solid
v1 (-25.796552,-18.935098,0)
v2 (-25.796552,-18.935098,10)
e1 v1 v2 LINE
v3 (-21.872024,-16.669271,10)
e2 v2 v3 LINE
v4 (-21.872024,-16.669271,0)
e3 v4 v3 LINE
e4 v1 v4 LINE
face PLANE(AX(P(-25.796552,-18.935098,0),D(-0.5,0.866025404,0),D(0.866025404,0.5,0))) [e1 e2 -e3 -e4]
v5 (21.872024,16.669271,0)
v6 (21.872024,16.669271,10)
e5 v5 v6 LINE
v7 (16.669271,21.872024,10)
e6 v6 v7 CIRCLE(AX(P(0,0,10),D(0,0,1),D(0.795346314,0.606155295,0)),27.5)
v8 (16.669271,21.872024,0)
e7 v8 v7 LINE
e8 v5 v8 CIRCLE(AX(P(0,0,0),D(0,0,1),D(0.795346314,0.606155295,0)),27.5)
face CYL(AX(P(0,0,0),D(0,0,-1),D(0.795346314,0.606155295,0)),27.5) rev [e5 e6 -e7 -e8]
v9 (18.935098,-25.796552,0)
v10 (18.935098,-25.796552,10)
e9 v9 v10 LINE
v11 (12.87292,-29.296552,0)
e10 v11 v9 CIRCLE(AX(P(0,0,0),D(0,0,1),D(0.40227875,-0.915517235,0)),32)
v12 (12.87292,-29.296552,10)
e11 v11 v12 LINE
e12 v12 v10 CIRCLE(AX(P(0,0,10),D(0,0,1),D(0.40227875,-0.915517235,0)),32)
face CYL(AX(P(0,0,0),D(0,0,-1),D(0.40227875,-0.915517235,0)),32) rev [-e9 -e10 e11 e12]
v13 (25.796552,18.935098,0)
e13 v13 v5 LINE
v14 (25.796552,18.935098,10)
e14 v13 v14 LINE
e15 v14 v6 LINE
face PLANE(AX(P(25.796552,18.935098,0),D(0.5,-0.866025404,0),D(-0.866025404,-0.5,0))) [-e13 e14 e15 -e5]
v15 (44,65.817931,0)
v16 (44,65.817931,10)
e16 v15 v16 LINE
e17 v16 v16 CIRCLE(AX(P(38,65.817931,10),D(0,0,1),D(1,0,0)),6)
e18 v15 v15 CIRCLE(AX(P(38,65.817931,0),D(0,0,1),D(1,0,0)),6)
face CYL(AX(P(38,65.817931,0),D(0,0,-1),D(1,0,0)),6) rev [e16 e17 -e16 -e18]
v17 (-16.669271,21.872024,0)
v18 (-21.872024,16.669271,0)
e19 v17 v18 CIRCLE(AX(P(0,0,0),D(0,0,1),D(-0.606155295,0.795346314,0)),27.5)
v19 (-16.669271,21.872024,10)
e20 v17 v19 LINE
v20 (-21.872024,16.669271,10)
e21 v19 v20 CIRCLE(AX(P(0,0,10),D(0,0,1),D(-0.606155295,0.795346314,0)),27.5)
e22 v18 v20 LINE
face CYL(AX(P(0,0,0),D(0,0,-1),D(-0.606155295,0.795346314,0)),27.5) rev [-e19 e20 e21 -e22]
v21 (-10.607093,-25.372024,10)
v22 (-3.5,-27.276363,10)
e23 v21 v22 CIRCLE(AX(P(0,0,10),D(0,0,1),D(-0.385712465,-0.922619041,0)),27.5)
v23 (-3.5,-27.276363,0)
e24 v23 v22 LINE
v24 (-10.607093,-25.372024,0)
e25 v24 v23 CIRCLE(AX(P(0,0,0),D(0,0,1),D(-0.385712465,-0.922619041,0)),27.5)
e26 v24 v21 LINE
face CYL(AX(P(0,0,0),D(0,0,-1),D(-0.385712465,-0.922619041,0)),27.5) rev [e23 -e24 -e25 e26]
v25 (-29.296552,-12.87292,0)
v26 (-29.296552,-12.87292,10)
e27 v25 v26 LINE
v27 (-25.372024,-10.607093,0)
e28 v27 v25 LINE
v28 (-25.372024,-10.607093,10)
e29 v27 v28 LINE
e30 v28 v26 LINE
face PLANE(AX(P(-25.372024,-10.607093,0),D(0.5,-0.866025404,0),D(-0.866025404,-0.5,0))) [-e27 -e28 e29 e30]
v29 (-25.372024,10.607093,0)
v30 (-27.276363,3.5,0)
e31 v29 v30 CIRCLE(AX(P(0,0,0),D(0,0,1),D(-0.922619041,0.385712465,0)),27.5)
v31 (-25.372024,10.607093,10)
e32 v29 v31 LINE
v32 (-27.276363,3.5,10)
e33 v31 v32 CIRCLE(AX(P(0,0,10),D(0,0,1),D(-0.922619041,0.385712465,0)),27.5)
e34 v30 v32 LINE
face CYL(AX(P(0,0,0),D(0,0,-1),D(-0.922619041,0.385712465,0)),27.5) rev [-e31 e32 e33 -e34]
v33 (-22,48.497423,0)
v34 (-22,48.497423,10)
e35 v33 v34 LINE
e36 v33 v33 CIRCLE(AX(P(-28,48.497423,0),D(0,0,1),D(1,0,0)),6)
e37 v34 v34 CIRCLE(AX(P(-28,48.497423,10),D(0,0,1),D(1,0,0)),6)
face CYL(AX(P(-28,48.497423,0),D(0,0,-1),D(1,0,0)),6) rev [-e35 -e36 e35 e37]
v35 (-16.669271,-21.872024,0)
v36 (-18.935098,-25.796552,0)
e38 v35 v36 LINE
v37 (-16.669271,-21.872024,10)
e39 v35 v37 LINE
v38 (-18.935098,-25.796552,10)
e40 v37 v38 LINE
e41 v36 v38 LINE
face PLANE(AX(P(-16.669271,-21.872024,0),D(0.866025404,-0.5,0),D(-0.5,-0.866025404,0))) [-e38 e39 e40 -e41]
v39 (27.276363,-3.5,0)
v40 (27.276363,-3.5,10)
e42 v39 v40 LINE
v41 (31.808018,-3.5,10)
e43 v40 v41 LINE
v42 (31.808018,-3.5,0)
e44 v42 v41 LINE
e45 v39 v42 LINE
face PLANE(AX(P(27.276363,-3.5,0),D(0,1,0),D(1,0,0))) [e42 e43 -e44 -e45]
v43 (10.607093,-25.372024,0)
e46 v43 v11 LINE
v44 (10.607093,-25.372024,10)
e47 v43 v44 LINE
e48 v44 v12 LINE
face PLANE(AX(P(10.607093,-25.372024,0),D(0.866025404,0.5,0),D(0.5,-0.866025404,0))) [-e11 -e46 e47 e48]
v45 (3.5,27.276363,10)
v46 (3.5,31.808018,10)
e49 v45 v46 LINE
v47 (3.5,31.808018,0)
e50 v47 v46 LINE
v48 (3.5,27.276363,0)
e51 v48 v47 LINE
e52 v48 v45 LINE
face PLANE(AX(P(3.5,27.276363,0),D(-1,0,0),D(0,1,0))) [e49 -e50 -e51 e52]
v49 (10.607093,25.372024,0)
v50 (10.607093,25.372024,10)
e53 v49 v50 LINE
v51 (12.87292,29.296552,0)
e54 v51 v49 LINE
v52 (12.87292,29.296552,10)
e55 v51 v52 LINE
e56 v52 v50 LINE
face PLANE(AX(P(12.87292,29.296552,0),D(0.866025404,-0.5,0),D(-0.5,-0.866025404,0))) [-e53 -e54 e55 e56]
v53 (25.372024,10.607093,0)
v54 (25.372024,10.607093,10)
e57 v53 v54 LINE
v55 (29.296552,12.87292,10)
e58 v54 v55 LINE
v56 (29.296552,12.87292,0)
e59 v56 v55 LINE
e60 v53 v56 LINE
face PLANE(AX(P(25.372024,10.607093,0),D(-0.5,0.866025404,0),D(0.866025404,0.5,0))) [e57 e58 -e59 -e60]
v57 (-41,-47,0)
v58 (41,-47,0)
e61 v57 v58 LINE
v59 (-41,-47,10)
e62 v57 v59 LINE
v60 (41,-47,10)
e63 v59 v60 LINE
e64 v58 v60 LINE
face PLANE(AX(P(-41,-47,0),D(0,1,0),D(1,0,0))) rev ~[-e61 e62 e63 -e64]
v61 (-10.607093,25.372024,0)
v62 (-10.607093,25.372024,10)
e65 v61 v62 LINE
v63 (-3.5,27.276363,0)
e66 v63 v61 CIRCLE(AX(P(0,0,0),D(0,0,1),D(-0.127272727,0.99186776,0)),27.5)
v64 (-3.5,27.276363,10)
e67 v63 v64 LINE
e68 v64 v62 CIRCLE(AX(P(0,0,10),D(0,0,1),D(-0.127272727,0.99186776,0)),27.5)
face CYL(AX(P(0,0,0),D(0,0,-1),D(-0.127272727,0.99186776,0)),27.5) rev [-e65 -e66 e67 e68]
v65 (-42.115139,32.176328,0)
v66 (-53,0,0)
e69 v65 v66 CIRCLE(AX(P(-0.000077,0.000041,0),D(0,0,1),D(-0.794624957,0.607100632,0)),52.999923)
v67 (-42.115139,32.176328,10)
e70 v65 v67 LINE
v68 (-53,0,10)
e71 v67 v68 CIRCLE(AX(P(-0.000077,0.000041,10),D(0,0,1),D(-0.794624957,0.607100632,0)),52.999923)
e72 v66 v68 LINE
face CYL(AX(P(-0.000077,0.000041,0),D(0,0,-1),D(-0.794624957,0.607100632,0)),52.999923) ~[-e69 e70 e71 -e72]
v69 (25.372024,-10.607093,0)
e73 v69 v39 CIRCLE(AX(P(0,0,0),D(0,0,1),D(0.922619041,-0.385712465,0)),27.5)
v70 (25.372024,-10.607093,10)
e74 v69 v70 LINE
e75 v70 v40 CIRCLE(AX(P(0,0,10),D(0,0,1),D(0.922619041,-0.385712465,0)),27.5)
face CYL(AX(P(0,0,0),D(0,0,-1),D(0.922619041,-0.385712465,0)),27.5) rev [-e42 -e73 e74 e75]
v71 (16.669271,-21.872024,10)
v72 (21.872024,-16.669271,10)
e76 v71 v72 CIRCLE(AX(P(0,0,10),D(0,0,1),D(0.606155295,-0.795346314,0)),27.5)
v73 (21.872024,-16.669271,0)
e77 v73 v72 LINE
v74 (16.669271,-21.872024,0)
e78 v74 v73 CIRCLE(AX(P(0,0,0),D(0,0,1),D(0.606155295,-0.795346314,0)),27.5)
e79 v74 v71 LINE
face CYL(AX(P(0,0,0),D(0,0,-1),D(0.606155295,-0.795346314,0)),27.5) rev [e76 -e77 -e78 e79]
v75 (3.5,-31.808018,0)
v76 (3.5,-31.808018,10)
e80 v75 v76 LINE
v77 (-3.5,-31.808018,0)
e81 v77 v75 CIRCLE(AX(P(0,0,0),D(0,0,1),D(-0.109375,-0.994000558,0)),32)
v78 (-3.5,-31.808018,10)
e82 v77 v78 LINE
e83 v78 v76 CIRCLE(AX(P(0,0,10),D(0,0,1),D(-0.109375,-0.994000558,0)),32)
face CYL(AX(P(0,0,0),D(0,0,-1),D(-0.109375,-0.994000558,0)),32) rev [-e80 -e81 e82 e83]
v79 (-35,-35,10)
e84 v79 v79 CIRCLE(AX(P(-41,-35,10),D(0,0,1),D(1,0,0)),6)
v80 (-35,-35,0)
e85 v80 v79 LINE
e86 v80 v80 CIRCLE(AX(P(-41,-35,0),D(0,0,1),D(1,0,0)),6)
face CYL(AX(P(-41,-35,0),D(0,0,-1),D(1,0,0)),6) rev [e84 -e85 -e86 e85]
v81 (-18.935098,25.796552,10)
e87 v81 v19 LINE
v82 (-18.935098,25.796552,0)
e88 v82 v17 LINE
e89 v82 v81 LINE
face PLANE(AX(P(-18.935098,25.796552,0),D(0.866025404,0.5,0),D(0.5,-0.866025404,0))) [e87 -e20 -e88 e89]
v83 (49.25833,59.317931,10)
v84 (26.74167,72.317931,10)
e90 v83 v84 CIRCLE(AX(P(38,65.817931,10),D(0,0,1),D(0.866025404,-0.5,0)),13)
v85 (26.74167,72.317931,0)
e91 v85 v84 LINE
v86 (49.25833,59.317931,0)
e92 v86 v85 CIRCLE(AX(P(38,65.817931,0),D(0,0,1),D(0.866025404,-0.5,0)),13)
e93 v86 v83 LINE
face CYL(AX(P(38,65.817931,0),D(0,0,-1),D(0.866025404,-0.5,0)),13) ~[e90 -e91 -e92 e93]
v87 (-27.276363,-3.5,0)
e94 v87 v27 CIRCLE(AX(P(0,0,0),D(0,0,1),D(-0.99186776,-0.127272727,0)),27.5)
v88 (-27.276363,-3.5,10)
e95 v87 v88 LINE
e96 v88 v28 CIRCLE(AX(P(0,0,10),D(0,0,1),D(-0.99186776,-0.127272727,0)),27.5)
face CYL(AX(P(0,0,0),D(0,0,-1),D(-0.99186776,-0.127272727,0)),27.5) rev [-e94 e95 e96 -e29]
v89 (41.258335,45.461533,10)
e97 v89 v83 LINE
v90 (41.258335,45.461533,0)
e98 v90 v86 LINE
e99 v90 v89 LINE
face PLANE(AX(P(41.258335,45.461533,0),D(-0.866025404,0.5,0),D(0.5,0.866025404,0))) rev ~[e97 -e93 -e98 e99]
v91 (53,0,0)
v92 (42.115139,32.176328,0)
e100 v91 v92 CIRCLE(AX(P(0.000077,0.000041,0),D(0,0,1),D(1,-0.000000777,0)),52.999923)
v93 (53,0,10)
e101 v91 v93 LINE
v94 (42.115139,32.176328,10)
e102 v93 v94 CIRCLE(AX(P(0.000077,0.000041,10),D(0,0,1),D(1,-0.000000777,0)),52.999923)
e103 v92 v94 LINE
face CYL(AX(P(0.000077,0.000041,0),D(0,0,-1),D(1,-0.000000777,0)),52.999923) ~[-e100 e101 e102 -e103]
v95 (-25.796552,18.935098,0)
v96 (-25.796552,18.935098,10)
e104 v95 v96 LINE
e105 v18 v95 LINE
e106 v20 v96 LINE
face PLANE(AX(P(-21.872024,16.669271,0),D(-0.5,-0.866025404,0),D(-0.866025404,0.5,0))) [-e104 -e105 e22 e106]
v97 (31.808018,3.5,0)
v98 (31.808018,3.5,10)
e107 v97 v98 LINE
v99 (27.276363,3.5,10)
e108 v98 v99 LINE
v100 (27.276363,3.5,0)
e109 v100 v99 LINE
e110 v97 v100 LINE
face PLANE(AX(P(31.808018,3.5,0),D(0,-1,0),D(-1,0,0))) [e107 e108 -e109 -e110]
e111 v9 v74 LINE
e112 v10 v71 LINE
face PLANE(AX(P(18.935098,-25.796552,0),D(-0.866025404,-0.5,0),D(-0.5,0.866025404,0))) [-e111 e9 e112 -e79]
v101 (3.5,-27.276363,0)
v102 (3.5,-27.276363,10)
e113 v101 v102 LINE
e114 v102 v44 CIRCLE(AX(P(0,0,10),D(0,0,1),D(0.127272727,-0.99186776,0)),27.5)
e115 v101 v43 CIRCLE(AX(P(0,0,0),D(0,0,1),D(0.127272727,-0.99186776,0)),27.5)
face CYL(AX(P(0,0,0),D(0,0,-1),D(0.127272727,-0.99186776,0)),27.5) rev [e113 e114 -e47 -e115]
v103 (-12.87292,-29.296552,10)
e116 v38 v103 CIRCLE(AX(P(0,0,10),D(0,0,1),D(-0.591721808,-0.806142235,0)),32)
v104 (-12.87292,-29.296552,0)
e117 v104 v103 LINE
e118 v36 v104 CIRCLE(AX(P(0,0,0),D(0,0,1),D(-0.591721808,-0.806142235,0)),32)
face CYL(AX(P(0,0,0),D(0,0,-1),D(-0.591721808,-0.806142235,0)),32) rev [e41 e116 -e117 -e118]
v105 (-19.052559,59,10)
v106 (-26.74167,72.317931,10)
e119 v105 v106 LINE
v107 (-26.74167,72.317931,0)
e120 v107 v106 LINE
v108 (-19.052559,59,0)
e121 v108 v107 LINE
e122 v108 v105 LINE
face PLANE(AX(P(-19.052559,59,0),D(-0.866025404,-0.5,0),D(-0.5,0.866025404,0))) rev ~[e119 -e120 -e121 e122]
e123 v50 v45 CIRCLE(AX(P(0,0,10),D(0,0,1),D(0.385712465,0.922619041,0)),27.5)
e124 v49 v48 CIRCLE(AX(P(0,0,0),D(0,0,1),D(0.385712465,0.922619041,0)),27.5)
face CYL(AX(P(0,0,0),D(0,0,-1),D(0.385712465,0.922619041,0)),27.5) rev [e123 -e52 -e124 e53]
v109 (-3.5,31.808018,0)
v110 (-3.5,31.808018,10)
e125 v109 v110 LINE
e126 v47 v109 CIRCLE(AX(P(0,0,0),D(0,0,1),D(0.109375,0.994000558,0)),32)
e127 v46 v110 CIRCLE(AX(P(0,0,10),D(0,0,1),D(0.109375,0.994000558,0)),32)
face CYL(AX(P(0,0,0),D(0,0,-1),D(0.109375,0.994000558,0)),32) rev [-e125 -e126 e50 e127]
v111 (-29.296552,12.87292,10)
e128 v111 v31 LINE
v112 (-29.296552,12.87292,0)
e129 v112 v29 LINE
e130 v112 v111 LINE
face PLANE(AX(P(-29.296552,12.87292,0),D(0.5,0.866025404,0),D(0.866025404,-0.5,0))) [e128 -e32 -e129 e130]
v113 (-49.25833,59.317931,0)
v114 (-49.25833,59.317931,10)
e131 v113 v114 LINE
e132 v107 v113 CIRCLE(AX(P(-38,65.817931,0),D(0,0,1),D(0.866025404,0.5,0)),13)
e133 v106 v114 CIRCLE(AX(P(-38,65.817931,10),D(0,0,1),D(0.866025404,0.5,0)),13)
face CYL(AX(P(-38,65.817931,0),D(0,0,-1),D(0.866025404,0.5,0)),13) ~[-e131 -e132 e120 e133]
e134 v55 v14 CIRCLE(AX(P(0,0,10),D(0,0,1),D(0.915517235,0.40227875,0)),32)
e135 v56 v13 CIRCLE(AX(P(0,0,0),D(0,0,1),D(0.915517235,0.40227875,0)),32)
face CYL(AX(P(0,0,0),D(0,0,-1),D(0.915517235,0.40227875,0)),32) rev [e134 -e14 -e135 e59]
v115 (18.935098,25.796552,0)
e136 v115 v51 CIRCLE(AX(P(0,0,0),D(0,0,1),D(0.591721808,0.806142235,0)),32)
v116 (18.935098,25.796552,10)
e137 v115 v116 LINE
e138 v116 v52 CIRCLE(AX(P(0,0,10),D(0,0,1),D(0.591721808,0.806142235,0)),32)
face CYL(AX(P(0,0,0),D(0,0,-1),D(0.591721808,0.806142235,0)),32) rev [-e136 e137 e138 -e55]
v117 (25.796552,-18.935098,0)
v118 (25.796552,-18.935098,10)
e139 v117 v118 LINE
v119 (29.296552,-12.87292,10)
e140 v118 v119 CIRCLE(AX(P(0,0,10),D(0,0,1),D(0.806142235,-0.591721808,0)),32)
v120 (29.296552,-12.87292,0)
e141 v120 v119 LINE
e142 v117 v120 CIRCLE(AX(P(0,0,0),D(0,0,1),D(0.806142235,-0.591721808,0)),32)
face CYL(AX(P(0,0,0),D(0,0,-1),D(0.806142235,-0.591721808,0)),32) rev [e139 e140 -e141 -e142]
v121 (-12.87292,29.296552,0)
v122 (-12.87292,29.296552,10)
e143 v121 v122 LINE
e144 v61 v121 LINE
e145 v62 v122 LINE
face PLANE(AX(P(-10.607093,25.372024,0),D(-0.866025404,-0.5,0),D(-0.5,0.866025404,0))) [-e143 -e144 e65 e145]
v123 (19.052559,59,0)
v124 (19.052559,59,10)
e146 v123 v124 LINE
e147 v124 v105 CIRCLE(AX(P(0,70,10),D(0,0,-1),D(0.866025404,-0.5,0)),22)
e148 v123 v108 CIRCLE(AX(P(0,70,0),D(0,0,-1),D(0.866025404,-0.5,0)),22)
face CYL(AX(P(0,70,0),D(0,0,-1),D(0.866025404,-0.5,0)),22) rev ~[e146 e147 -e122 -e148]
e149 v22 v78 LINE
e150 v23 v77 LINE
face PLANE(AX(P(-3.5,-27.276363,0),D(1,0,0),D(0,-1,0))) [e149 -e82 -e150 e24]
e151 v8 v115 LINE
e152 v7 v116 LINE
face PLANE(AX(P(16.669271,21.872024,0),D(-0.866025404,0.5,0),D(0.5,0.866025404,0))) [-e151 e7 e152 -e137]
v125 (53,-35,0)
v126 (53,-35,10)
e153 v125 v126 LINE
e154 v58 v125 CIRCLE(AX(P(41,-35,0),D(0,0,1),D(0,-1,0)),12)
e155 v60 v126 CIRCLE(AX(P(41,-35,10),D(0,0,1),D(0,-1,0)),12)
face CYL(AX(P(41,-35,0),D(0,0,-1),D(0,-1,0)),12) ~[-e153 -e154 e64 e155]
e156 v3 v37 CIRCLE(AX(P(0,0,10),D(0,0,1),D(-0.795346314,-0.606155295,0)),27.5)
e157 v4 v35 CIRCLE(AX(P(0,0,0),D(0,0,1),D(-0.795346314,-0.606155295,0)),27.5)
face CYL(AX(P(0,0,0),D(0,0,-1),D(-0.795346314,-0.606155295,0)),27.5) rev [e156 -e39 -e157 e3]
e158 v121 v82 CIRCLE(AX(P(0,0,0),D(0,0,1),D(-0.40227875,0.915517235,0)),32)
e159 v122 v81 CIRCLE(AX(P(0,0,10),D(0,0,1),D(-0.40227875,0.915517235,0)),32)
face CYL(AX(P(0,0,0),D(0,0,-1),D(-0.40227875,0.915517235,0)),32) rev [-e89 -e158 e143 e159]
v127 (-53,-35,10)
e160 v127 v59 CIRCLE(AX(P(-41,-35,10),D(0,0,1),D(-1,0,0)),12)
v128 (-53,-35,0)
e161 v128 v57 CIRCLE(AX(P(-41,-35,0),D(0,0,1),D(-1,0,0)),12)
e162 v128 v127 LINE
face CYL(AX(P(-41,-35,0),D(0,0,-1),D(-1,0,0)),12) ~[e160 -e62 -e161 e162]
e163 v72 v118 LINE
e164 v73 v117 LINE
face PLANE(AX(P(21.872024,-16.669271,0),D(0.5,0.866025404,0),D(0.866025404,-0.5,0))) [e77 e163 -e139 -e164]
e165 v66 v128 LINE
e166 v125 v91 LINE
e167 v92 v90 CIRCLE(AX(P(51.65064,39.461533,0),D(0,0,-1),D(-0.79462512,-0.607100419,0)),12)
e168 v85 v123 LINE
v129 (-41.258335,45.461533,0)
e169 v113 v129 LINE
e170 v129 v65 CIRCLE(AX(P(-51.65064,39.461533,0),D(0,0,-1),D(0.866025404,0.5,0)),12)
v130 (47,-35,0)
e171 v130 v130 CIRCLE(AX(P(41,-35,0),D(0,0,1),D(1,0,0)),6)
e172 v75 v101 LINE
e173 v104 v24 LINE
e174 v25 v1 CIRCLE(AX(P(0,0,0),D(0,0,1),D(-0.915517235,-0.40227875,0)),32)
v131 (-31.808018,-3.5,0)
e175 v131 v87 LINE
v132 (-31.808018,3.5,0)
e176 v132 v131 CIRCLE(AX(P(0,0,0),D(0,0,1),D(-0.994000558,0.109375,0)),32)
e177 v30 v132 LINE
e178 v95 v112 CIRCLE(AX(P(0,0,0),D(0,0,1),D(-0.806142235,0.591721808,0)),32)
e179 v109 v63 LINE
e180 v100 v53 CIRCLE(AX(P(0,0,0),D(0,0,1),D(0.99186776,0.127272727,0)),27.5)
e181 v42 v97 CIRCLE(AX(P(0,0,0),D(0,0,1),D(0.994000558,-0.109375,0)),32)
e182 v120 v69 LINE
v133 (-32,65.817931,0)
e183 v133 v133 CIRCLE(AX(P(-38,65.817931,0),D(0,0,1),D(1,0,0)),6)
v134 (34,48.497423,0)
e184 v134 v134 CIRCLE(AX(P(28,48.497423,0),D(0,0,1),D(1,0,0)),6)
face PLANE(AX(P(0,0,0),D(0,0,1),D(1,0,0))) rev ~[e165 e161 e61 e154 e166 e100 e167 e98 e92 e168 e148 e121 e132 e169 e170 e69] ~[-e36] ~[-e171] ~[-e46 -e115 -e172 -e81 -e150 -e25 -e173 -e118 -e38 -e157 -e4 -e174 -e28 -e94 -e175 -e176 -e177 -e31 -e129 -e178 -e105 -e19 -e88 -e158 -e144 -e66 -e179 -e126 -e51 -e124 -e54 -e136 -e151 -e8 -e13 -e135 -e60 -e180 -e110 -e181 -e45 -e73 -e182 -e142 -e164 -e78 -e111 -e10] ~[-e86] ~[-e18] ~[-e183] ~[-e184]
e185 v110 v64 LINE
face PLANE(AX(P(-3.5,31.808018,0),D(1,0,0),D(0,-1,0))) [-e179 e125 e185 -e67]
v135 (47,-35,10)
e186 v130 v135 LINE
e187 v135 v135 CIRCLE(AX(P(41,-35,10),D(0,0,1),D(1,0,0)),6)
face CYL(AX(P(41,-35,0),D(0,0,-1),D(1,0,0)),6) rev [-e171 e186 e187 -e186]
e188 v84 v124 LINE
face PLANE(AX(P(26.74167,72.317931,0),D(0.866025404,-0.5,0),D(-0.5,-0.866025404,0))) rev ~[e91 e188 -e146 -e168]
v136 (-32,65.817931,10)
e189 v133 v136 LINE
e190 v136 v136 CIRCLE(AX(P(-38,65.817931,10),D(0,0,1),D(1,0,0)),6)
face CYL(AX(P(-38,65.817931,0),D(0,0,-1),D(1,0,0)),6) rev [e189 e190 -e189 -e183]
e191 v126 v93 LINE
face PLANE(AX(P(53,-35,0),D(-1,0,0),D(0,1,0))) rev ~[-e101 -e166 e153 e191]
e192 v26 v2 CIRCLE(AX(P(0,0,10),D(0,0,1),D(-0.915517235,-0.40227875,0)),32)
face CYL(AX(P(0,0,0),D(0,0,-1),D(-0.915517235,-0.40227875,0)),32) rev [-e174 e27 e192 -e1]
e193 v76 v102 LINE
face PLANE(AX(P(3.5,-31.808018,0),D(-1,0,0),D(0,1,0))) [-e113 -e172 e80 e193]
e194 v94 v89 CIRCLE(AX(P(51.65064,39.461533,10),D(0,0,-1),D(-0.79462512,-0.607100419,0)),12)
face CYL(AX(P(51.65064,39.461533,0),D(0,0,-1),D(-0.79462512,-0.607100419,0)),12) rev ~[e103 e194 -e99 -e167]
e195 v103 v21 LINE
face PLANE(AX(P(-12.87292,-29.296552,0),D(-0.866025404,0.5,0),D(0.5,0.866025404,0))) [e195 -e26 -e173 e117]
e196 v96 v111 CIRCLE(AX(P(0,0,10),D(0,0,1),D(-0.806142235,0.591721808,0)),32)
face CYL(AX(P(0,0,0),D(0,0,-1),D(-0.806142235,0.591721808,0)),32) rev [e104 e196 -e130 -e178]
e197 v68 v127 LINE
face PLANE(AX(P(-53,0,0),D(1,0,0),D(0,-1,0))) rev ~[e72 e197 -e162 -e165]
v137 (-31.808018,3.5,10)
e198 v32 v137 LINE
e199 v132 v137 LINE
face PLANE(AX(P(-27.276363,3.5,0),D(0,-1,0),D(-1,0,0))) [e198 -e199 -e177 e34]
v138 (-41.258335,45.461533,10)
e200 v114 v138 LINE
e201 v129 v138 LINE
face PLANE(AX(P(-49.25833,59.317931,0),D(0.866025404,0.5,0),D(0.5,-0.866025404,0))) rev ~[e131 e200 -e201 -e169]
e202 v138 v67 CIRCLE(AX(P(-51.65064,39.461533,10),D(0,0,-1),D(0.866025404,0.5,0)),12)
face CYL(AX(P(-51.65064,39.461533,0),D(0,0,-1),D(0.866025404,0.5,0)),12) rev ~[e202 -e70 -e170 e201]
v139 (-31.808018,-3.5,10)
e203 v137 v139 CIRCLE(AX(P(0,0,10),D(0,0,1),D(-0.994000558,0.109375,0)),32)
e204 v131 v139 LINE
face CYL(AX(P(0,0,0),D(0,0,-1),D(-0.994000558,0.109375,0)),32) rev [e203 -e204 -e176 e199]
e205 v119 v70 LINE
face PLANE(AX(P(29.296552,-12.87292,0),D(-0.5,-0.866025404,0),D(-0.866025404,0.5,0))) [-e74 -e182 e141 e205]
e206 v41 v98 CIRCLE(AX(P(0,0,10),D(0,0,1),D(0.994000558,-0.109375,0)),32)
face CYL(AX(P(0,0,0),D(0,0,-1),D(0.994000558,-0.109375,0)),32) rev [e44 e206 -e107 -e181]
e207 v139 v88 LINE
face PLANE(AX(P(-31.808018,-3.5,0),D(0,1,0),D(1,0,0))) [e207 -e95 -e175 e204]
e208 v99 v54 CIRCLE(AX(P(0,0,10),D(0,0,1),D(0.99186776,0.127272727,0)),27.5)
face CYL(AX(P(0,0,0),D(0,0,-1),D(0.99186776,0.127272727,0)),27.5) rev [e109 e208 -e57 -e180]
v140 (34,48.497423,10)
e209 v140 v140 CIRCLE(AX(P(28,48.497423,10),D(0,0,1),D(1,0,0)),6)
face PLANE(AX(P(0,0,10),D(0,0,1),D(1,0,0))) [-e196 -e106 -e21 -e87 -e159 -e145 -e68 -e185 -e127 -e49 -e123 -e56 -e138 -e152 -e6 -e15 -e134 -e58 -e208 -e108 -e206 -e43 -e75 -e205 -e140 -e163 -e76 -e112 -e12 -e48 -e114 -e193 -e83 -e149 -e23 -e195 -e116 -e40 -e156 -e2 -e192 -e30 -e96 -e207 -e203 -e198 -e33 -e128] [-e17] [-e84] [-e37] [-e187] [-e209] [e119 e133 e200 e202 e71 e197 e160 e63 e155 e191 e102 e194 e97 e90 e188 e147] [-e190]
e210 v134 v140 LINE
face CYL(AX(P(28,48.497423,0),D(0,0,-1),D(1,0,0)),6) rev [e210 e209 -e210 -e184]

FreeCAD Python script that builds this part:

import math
import FreeCAD as App
import Part
import Sketcher
from FreeCAD import Vector
Q = App.Units.Quantity

doc = App.newDocument("Part")
body = doc.addObject("PartDesign::Body", "Body")

# Sketch on XY plane
sketch1 = body.newObject("Sketcher::SketchObject", "Sketch")
sketch1.AttachmentSupport = (doc.getObject("XY_Plane"), [""])
sketch1.MapMode = "FlatFace"
sketch1.addGeometry(Part.ArcOfCircle(Part.Circle(Vector(38, 65.817931, 0), Vector(0, 0, 1), 13), math.radians(-30), math.radians(150)), False)
sketch1.addGeometry(Part.LineSegment(Vector(26.74167, 72.317931, 0), Vector(19.052559, 59, 0)), False)
sketch1.addGeometry(Part.ArcOfCircle(Part.Circle(Vector(0, 70, 0), Vector(0, 0, 1), 22), math.radians(-150), math.radians(-30)), False)
sketch1.addGeometry(Part.LineSegment(Vector(-19.052559, 59, 0), Vector(-26.74167, 72.317931, 0)), False)
sketch1.addGeometry(Part.ArcOfCircle(Part.Circle(Vector(-38, 65.817931, 0), Vector(0, 0, 1), 13), math.radians(30), math.radians(210)), False)
sketch1.addGeometry(Part.LineSegment(Vector(-49.25833, 59.317931, 0), Vector(-41.258335, 45.461533, 0)), False)
sketch1.addGeometry(Part.ArcOfCircle(Part.Circle(Vector(-51.65064, 39.461533, 0), Vector(0, 0, 1), 12), math.radians(-37.380138), math.radians(30)), False)
sketch1.addGeometry(Part.ArcOfCircle(Part.Circle(Vector(-0.000077, 0.000041, 0), Vector(0, 0, 1), 52.999923), math.radians(142.619846), math.radians(180.000045)), False)
sketch1.addGeometry(Part.LineSegment(Vector(-53, 0, 0), Vector(-53, -35, 0)), False)
sketch1.addGeometry(Part.ArcOfCircle(Part.Circle(Vector(-41, -35, 0), Vector(0, 0, 1), 12), math.radians(-180), math.radians(-90)), False)
sketch1.addGeometry(Part.LineSegment(Vector(-41, -47, 0), Vector(41, -47, 0)), False)
sketch1.addGeometry(Part.ArcOfCircle(Part.Circle(Vector(41, -35, 0), Vector(0, 0, 1), 12), math.radians(-90), math.radians(0)), False)
sketch1.addGeometry(Part.LineSegment(Vector(53, -35, 0), Vector(53, 0, 0)), False)
sketch1.addGeometry(Part.ArcOfCircle(Part.Circle(Vector(0.000077, 0.000041, 0), Vector(0, 0, 1), 52.999923), math.radians(-0.000045), math.radians(37.380154)), False)
sketch1.addGeometry(Part.ArcOfCircle(Part.Circle(Vector(51.65064, 39.461533, 0), Vector(0, 0, 1), 12), math.radians(150), math.radians(217.380138)), False)
sketch1.addGeometry(Part.LineSegment(Vector(41.258335, 45.461533, 0), Vector(49.25833, 59.317931, 0)), False)
sketch1.addGeometry(Part.Circle(Vector(-41, -35, 0), Vector(0, 0, 1), 6), False)
sketch1.addGeometry(Part.Circle(Vector(41, -35, 0), Vector(0, 0, 1), 6), False)
sketch1.addGeometry(Part.Circle(Vector(-28, 48.497423, 0), Vector(0, 0, 1), 6), False)
sketch1.addGeometry(Part.Circle(Vector(-38, 65.817931, 0), Vector(0, 0, 1), 6), False)
sketch1.addGeometry(Part.Circle(Vector(28, 48.497423, 0), Vector(0, 0, 1), 6), False)
sketch1.addGeometry(Part.Circle(Vector(38, 65.817931, 0), Vector(0, 0, 1), 6), False)
sketch1.addGeometry(Part.LineSegment(Vector(10.607093, 25.372024, 0), Vector(12.87292, 29.296552, 0)), False)
sketch1.addGeometry(Part.ArcOfCircle(Part.Circle(Vector(0, 0, 0), Vector(0, 0, 1), 32), math.radians(53.720712), math.radians(66.279288)), False)
sketch1.addGeometry(Part.LineSegment(Vector(18.935098, 25.796552, 0), Vector(16.669271, 21.872024, 0)), False)
sketch1.addGeometry(Part.ArcOfCircle(Part.Circle(Vector(0, 0, 0), Vector(0, 0, 1), 27.5), math.radians(37.312022), math.radians(52.687978)), False)
sketch1.addGeometry(Part.LineSegment(Vector(21.872024, 16.669271, 0), Vector(25.796552, 18.935098, 0)), False)
sketch1.addGeometry(Part.ArcOfCircle(Part.Circle(Vector(0, 0, 0), Vector(0, 0, 1), 32), math.radians(23.720712), math.radians(36.279288)), False)
sketch1.addGeometry(Part.LineSegment(Vector(29.296552, 12.87292, 0), Vector(25.372024, 10.607093, 0)), False)
sketch1.addGeometry(Part.ArcOfCircle(Part.Circle(Vector(0, 0, 0), Vector(0, 0, 1), 27.5), math.radians(7.312022), math.radians(22.687978)), False)
sketch1.addGeometry(Part.LineSegment(Vector(27.276363, 3.5, 0), Vector(31.808018, 3.5, 0)), False)
sketch1.addGeometry(Part.ArcOfCircle(Part.Circle(Vector(0, 0, 0), Vector(0, 0, 1), 32), math.radians(-6.279288), math.radians(6.279288)), False)
sketch1.addGeometry(Part.LineSegment(Vector(31.808018, -3.5, 0), Vector(27.276363, -3.5, 0)), False)
sketch1.addGeometry(Part.ArcOfCircle(Part.Circle(Vector(0, 0, 0), Vector(0, 0, 1), 27.5), math.radians(-22.687978), math.radians(-7.312022)), False)
sketch1.addGeometry(Part.LineSegment(Vector(25.372024, -10.607093, 0), Vector(29.296552, -12.87292, 0)), False)
sketch1.addGeometry(Part.ArcOfCircle(Part.Circle(Vector(0, 0, 0), Vector(0, 0, 1), 32), math.radians(-36.279288), math.radians(-23.720712)), False)
sketch1.addGeometry(Part.LineSegment(Vector(25.796552, -18.935098, 0), Vector(21.872024, -16.669271, 0)), False)
sketch1.addGeometry(Part.ArcOfCircle(Part.Circle(Vector(0, 0, 0), Vector(0, 0, 1), 27.5), math.radians(-52.687978), math.radians(-37.312022)), False)
sketch1.addGeometry(Part.LineSegment(Vector(16.669271, -21.872024, 0), Vector(18.935098, -25.796552, 0)), False)
sketch1.addGeometry(Part.ArcOfCircle(Part.Circle(Vector(0, 0, 0), Vector(0, 0, 1), 32), math.radians(-66.279288), math.radians(-53.720712)), False)
sketch1.addGeometry(Part.LineSegment(Vector(12.87292, -29.296552, 0), Vector(10.607093, -25.372024, 0)), False)
sketch1.addGeometry(Part.ArcOfCircle(Part.Circle(Vector(0, 0, 0), Vector(0, 0, 1), 27.5), math.radians(-82.687978), math.radians(-67.312022)), False)
sketch1.addGeometry(Part.LineSegment(Vector(3.5, -27.276363, 0), Vector(3.5, -31.808018, 0)), False)
sketch1.addGeometry(Part.ArcOfCircle(Part.Circle(Vector(0, 0, 0), Vector(0, 0, 1), 32), math.radians(-96.279288), math.radians(-83.720712)), False)
sketch1.addGeometry(Part.LineSegment(Vector(-3.5, -31.808018, 0), Vector(-3.5, -27.276363, 0)), False)
sketch1.addGeometry(Part.ArcOfCircle(Part.Circle(Vector(0, 0, 0), Vector(0, 0, 1), 27.5), math.radians(-112.687978), math.radians(-97.312022)), False)
sketch1.addGeometry(Part.LineSegment(Vector(-10.607093, -25.372024, 0), Vector(-12.87292, -29.296552, 0)), False)
sketch1.addGeometry(Part.ArcOfCircle(Part.Circle(Vector(0, 0, 0), Vector(0, 0, 1), 32), math.radians(-126.279288), math.radians(-113.720712)), False)
sketch1.addGeometry(Part.LineSegment(Vector(-18.935098, -25.796552, 0), Vector(-16.669271, -21.872024, 0)), False)
sketch1.addGeometry(Part.ArcOfCircle(Part.Circle(Vector(0, 0, 0), Vector(0, 0, 1), 27.5), math.radians(-142.687978), math.radians(-127.312022)), False)
sketch1.addGeometry(Part.LineSegment(Vector(-21.872024, -16.669271, 0), Vector(-25.796552, -18.935098, 0)), False)
sketch1.addGeometry(Part.ArcOfCircle(Part.Circle(Vector(0, 0, 0), Vector(0, 0, 1), 32), math.radians(-156.279288), math.radians(-143.720712)), False)
sketch1.addGeometry(Part.LineSegment(Vector(-29.296552, -12.87292, 0), Vector(-25.372024, -10.607093, 0)), False)
sketch1.addGeometry(Part.ArcOfCircle(Part.Circle(Vector(0, 0, 0), Vector(0, 0, 1), 27.5), math.radians(-172.687978), math.radians(-157.312022)), False)
sketch1.addGeometry(Part.LineSegment(Vector(-27.276363, -3.5, 0), Vector(-31.808018, -3.5, 0)), False)
sketch1.addGeometry(Part.ArcOfCircle(Part.Circle(Vector(0, 0, 0), Vector(0, 0, 1), 32), math.radians(173.720712), math.radians(186.279288)), False)
sketch1.addGeometry(Part.LineSegment(Vector(-31.808018, 3.5, 0), Vector(-27.276363, 3.5, 0)), False)
sketch1.addGeometry(Part.ArcOfCircle(Part.Circle(Vector(0, 0, 0), Vector(0, 0, 1), 27.5), math.radians(157.312022), math.radians(172.687978)), False)
sketch1.addGeometry(Part.LineSegment(Vector(-25.372024, 10.607093, 0), Vector(-29.296552, 12.87292, 0)), False)
sketch1.addGeometry(Part.ArcOfCircle(Part.Circle(Vector(0, 0, 0), Vector(0, 0, 1), 32), math.radians(143.720712), math.radians(156.279288)), False)
sketch1.addGeometry(Part.LineSegment(Vector(-25.796552, 18.935098, 0), Vector(-21.872024, 16.669271, 0)), False)
sketch1.addGeometry(Part.ArcOfCircle(Part.Circle(Vector(0, 0, 0), Vector(0, 0, 1), 27.5), math.radians(127.312022), math.radians(142.687978)), False)
sketch1.addGeometry(Part.LineSegment(Vector(-16.669271, 21.872024, 0), Vector(-18.935098, 25.796552, 0)), False)
sketch1.addGeometry(Part.ArcOfCircle(Part.Circle(Vector(0, 0, 0), Vector(0, 0, 1), 32), math.radians(113.720712), math.radians(126.279288)), False)
sketch1.addGeometry(Part.LineSegment(Vector(-12.87292, 29.296552, 0), Vector(-10.607093, 25.372024, 0)), False)
sketch1.addGeometry(Part.ArcOfCircle(Part.Circle(Vector(0, 0, 0), Vector(0, 0, 1), 27.5), math.radians(97.312022), math.radians(112.687978)), False)
sketch1.addGeometry(Part.LineSegment(Vector(-3.5, 27.276363, 0), Vector(-3.5, 31.808018, 0)), False)
sketch1.addGeometry(Part.ArcOfCircle(Part.Circle(Vector(0, 0, 0), Vector(0, 0, 1), 32), math.radians(83.720712), math.radians(96.279288)), False)
sketch1.addGeometry(Part.LineSegment(Vector(3.5, 31.808018, 0), Vector(3.5, 27.276363, 0)), False)
sketch1.addGeometry(Part.ArcOfCircle(Part.Circle(Vector(0, 0, 0), Vector(0, 0, 1), 27.5), math.radians(67.312022), math.radians(82.687978)), False)
sketch1.addConstraint(Sketcher.Constraint("Coincident", 0, 2, 1, 1))
sketch1.addConstraint(Sketcher.Constraint("Coincident", 1, 2, 2, 2))
sketch1.addConstraint(Sketcher.Constraint("Coincident", 2, 1, 3, 1))
sketch1.addConstraint(Sketcher.Constraint("Coincident", 3, 2, 4, 1))
sketch1.addConstraint(Sketcher.Constraint("Coincident", 4, 2, 5, 1))
sketch1.addConstraint(Sketcher.Constraint("Coincident", 5, 2, 6, 2))
sketch1.addConstraint(Sketcher.Constraint("Coincident", 6, 1, 7, 1))
sketch1.addConstraint(Sketcher.Constraint("Coincident", 7, 2, 8, 1))
sketch1.addConstraint(Sketcher.Constraint("Coincident", 8, 2, 9, 1))
sketch1.addConstraint(Sketcher.Constraint("Coincident", 9, 2, 10, 1))
sketch1.addConstraint(Sketcher.Constraint("Coincident", 10, 2, 11, 1))
sketch1.addConstraint(Sketcher.Constraint("Coincident", 11, 2, 12, 1))
sketch1.addConstraint(Sketcher.Constraint("Coincident", 12, 2, 13, 1))
sketch1.addConstraint(Sketcher.Constraint("Coincident", 13, 2, 14, 2))
sketch1.addConstraint(Sketcher.Constraint("Coincident", 14, 1, 15, 1))
sketch1.addConstraint(Sketcher.Constraint("Coincident", 15, 2, 0, 1))
sketch1.addConstraint(Sketcher.Constraint("Coincident", 22, 2, 23, 2))
sketch1.addConstraint(Sketcher.Constraint("Coincident", 23, 1, 24, 1))
sketch1.addConstraint(Sketcher.Constraint("Coincident", 24, 2, 25, 2))
sketch1.addConstraint(Sketcher.Constraint("Coincident", 25, 1, 26, 1))
sketch1.addConstraint(Sketcher.Constraint("Coincident", 26, 2, 27, 2))
sketch1.addConstraint(Sketcher.Constraint("Coincident", 27, 1, 28, 1))
sketch1.addConstraint(Sketcher.Constraint("Coincident", 28, 2, 29, 2))
sketch1.addConstraint(Sketcher.Constraint("Coincident", 29, 1, 30, 1))
sketch1.addConstraint(Sketcher.Constraint("Coincident", 30, 2, 31, 2))
sketch1.addConstraint(Sketcher.Constraint("Coincident", 31, 1, 32, 1))
sketch1.addConstraint(Sketcher.Constraint("Coincident", 32, 2, 33, 2))
sketch1.addConstraint(Sketcher.Constraint("Coincident", 33, 1, 34, 1))
sketch1.addConstraint(Sketcher.Constraint("Coincident", 34, 2, 35, 2))
sketch1.addConstraint(Sketcher.Constraint("Coincident", 35, 1, 36, 1))
sketch1.addConstraint(Sketcher.Constraint("Coincident", 36, 2, 37, 2))
sketch1.addConstraint(Sketcher.Constraint("Coincident", 37, 1, 38, 1))
sketch1.addConstraint(Sketcher.Constraint("Coincident", 38, 2, 39, 2))
sketch1.addConstraint(Sketcher.Constraint("Coincident", 39, 1, 40, 1))
sketch1.addConstraint(Sketcher.Constraint("Coincident", 40, 2, 41, 2))
sketch1.addConstraint(Sketcher.Constraint("Coincident", 41, 1, 42, 1))
sketch1.addConstraint(Sketcher.Constraint("Coincident", 42, 2, 43, 2))
sketch1.addConstraint(Sketcher.Constraint("Coincident", 43, 1, 44, 1))
sketch1.addConstraint(Sketcher.Constraint("Coincident", 44, 2, 45, 2))
sketch1.addConstraint(Sketcher.Constraint("Coincident", 45, 1, 46, 1))
sketch1.addConstraint(Sketcher.Constraint("Coincident", 46, 2, 47, 2))
sketch1.addConstraint(Sketcher.Constraint("Coincident", 47, 1, 48, 1))
sketch1.addConstraint(Sketcher.Constraint("Coincident", 48, 2, 49, 2))
sketch1.addConstraint(Sketcher.Constraint("Coincident", 49, 1, 50, 1))
sketch1.addConstraint(Sketcher.Constraint("Coincident", 50, 2, 51, 2))
sketch1.addConstraint(Sketcher.Constraint("Coincident", 51, 1, 52, 1))
sketch1.addConstraint(Sketcher.Constraint("Coincident", 52, 2, 53, 2))
sketch1.addConstraint(Sketcher.Constraint("Coincident", 53, 1, 54, 1))
sketch1.addConstraint(Sketcher.Constraint("Coincident", 54, 2, 55, 2))
sketch1.addConstraint(Sketcher.Constraint("Coincident", 55, 1, 56, 1))
sketch1.addConstraint(Sketcher.Constraint("Coincident", 56, 2, 57, 2))
sketch1.addConstraint(Sketcher.Constraint("Coincident", 57, 1, 58, 1))
sketch1.addConstraint(Sketcher.Constraint("Coincident", 58, 2, 59, 2))
sketch1.addConstraint(Sketcher.Constraint("Coincident", 59, 1, 60, 1))
sketch1.addConstraint(Sketcher.Constraint("Coincident", 60, 2, 61, 2))
sketch1.addConstraint(Sketcher.Constraint("Coincident", 61, 1, 62, 1))
sketch1.addConstraint(Sketcher.Constraint("Coincident", 62, 2, 63, 2))
sketch1.addConstraint(Sketcher.Constraint("Coincident", 63, 1, 64, 1))
sketch1.addConstraint(Sketcher.Constraint("Coincident", 64, 2, 65, 2))
sketch1.addConstraint(Sketcher.Constraint("Coincident", 65, 1, 66, 1))
sketch1.addConstraint(Sketcher.Constraint("Coincident", 66, 2, 67, 2))
sketch1.addConstraint(Sketcher.Constraint("Coincident", 67, 1, 68, 1))
sketch1.addConstraint(Sketcher.Constraint("Coincident", 68, 2, 69, 2))
sketch1.addConstraint(Sketcher.Constraint("Coincident", 69, 1, 22, 1))
sketch1.addConstraint(Sketcher.Constraint("Vertical", 8))
sketch1.addConstraint(Sketcher.Constraint("Horizontal", 10))
sketch1.addConstraint(Sketcher.Constraint("Vertical", 12))
sketch1.addConstraint(Sketcher.Constraint("Horizontal", 30))
sketch1.addConstraint(Sketcher.Constraint("Horizontal", 32))
sketch1.addConstraint(Sketcher.Constraint("Vertical", 42))
sketch1.addConstraint(Sketcher.Constraint("Vertical", 44))
sketch1.addConstraint(Sketcher.Constraint("Horizontal", 54))
sketch1.addConstraint(Sketcher.Constraint("Horizontal", 56))
sketch1.addConstraint(Sketcher.Constraint("Vertical", 66))
sketch1.addConstraint(Sketcher.Constraint("Vertical", 68))
sketch1.addConstraint(Sketcher.Constraint("Coincident", 23, 3, -1, 1))
sketch1.addConstraint(Sketcher.Constraint("Coincident", 25, 3, -1, 1))
sketch1.addConstraint(Sketcher.Constraint("Coincident", 27, 3, -1, 1))
sketch1.addConstraint(Sketcher.Constraint("Coincident", 29, 3, -1, 1))
sketch1.addConstraint(Sketcher.Constraint("Coincident", 31, 3, -1, 1))
sketch1.addConstraint(Sketcher.Constraint("Coincident", 33, 3, -1, 1))
sketch1.addConstraint(Sketcher.Constraint("Coincident", 35, 3, -1, 1))
sketch1.addConstraint(Sketcher.Constraint("Coincident", 37, 3, -1, 1))
sketch1.addConstraint(Sketcher.Constraint("Coincident", 39, 3, -1, 1))
sketch1.addConstraint(Sketcher.Constraint("Coincident", 41, 3, -1, 1))
sketch1.addConstraint(Sketcher.Constraint("Coincident", 43, 3, -1, 1))
sketch1.addConstraint(Sketcher.Constraint("Coincident", 45, 3, -1, 1))
sketch1.addConstraint(Sketcher.Constraint("Coincident", 47, 3, -1, 1))
sketch1.addConstraint(Sketcher.Constraint("Coincident", 49, 3, -1, 1))
sketch1.addConstraint(Sketcher.Constraint("Coincident", 51, 3, -1, 1))
sketch1.addConstraint(Sketcher.Constraint("Coincident", 53, 3, -1, 1))
sketch1.addConstraint(Sketcher.Constraint("Coincident", 55, 3, -1, 1))
sketch1.addConstraint(Sketcher.Constraint("Coincident", 57, 3, -1, 1))
sketch1.addConstraint(Sketcher.Constraint("Coincident", 59, 3, -1, 1))
sketch1.addConstraint(Sketcher.Constraint("Coincident", 61, 3, -1, 1))
sketch1.addConstraint(Sketcher.Constraint("Coincident", 63, 3, -1, 1))
sketch1.addConstraint(Sketcher.Constraint("Coincident", 65, 3, -1, 1))
sketch1.addConstraint(Sketcher.Constraint("Coincident", 67, 3, -1, 1))
sketch1.addConstraint(Sketcher.Constraint("Coincident", 69, 3, -1, 1))
sketch1.addConstraint(Sketcher.Constraint("Coincident", 16, 3, 9, 3))
sketch1.addConstraint(Sketcher.Constraint("Coincident", 17, 3, 11, 3))
sketch1.addConstraint(Sketcher.Constraint("Coincident", 19, 3, 4, 3))
sketch1.addConstraint(Sketcher.Constraint("Coincident", 21, 3, 0, 3))
sketch1.addConstraint(Sketcher.Constraint("PointOnObject", 2, 3, -2))
sketch1.addConstraint(Sketcher.Constraint("PointOnObject", 7, 2, -1))
sketch1.addConstraint(Sketcher.Constraint("PointOnObject", 12, 2, -1))
sketch1.addConstraint(Sketcher.Constraint("Diameter", 16, Q("12 mm")))
sketch1.addConstraint(Sketcher.Constraint("Diameter", 17, Q("12 mm")))
sketch1.addConstraint(Sketcher.Constraint("Diameter", 18, Q("12 mm")))
sketch1.addConstraint(Sketcher.Constraint("Diameter", 19, Q("12 mm")))
sketch1.addConstraint(Sketcher.Constraint("Diameter", 20, Q("12 mm")))
sketch1.addConstraint(Sketcher.Constraint("Diameter", 21, Q("12 mm")))
sketch1.addConstraint(Sketcher.Constraint("Radius", 0, Q("13 mm")))
sketch1.addConstraint(Sketcher.Constraint("Radius", 2, Q("22 mm")))
sketch1.addConstraint(Sketcher.Constraint("Radius", 4, Q("13 mm")))
sketch1.addConstraint(Sketcher.Constraint("Radius", 6, Q("12 mm")))
sketch1.addConstraint(Sketcher.Constraint("Radius", 9, Q("12 mm")))
sketch1.addConstraint(Sketcher.Constraint("Radius", 11, Q("12 mm")))
sketch1.addConstraint(Sketcher.Constraint("Radius", 14, Q("12 mm")))
sketch1.addConstraint(Sketcher.Constraint("Radius", 23, Q("32 mm")))
sketch1.addConstraint(Sketcher.Constraint("Radius", 27, Q("32 mm")))
sketch1.addConstraint(Sketcher.Constraint("Radius", 31, Q("32 mm")))
sketch1.addConstraint(Sketcher.Constraint("Radius", 35, Q("32 mm")))
sketch1.addConstraint(Sketcher.Constraint("Radius", 39, Q("32 mm")))
sketch1.addConstraint(Sketcher.Constraint("Radius", 43, Q("32 mm")))
sketch1.addConstraint(Sketcher.Constraint("Radius", 47, Q("32 mm")))
sketch1.addConstraint(Sketcher.Constraint("Radius", 51, Q("32 mm")))
sketch1.addConstraint(Sketcher.Constraint("Radius", 55, Q("32 mm")))
sketch1.addConstraint(Sketcher.Constraint("Radius", 59, Q("32 mm")))
sketch1.addConstraint(Sketcher.Constraint("Radius", 63, Q("32 mm")))
sketch1.addConstraint(Sketcher.Constraint("Radius", 67, Q("32 mm")))
sketch1.addConstraint(Sketcher.Constraint("Radius", 25, Q("27.5 mm")))
sketch1.addConstraint(Sketcher.Constraint("Radius", 29, Q("27.5 mm")))
sketch1.addConstraint(Sketcher.Constraint("Radius", 33, Q("27.5 mm")))
sketch1.addConstraint(Sketcher.Constraint("Radius", 37, Q("27.5 mm")))
sketch1.addConstraint(Sketcher.Constraint("Radius", 41, Q("27.5 mm")))
sketch1.addConstraint(Sketcher.Constraint("Radius", 45, Q("27.5 mm")))
sketch1.addConstraint(Sketcher.Constraint("Radius", 49, Q("27.5 mm")))
sketch1.addConstraint(Sketcher.Constraint("Radius", 53, Q("27.5 mm")))
sketch1.addConstraint(Sketcher.Constraint("Radius", 57, Q("27.5 mm")))
sketch1.addConstraint(Sketcher.Constraint("Radius", 61, Q("27.5 mm")))
sketch1.addConstraint(Sketcher.Constraint("Radius", 65, Q("27.5 mm")))
sketch1.addConstraint(Sketcher.Constraint("Radius", 69, Q("27.5 mm")))
sketch1.addConstraint(Sketcher.Constraint("DistanceX", 10, 1, 10, 2, Q("82 mm")))
sketch1.addConstraint(Sketcher.Constraint("DistanceY", 8, 2, 8, 1, Q("35 mm")))
sketch1.addConstraint(Sketcher.Constraint("DistanceY", 12, 1, 12, 2, Q("35 mm")))
sketch1.addConstraint(Sketcher.Constraint("DistanceX", -1, 1, 0, 3, Q("38 mm")))
sketch1.addConstraint(Sketcher.Constraint("DistanceY", -1, 1, 2, 3, Q("70 mm")))
sketch1.addConstraint(Sketcher.Constraint("DistanceX", 4, 3, -1, 1, Q("38 mm")))
sketch1.addConstraint(Sketcher.Constraint("DistanceX", 9, 3, -1, 1, Q("41 mm")))
sketch1.addConstraint(Sketcher.Constraint("DistanceY", 9, 3, -1, 1, Q("35 mm")))
sketch1.addConstraint(Sketcher.Constraint("DistanceX", -1, 1, 11, 3, Q("41 mm")))
sketch1.addConstraint(Sketcher.Constraint("DistanceX", 18, 3, -1, 1, Q("28 mm")))
sketch1.addConstraint(Sketcher.Constraint("DistanceX", -1, 1, 20, 3, Q("28 mm")))
sketch1.addConstraint(Sketcher.Constraint("DistanceY", -1, 1, 1, 2, Q("59 mm")))
sketch1.addConstraint(Sketcher.Constraint("DistanceY", -1, 1, 2, 1, Q("59 mm")))
sketch1.addConstraint(Sketcher.Constraint("DistanceX", 9, 2, -1, 1, Q("41 mm")))
sketch1.addConstraint(Sketcher.Constraint("DistanceY", -1, 1, 29, 1, Q("3.5 mm")))
sketch1.addConstraint(Sketcher.Constraint("DistanceY", 31, 1, -1, 1, Q("3.5 mm")))
sketch1.addConstraint(Sketcher.Constraint("DistanceX", -1, 1, 41, 1, Q("3.5 mm")))
sketch1.addConstraint(Sketcher.Constraint("DistanceX", 43, 1, -1, 1, Q("3.5 mm")))
sketch1.addConstraint(Sketcher.Constraint("DistanceY", 53, 1, -1, 1, Q("3.5 mm")))
sketch1.addConstraint(Sketcher.Constraint("DistanceY", -1, 1, 55, 1, Q("3.5 mm")))
sketch1.addConstraint(Sketcher.Constraint("DistanceX", 65, 1, -1, 1, Q("3.5 mm")))
sketch1.addConstraint(Sketcher.Constraint("DistanceX", -1, 1, 67, 1, Q("3.5 mm")))
sketch1.addConstraint(Sketcher.Constraint("Radius", 7, Q("52.999923 mm")))
sketch1.addConstraint(Sketcher.Constraint("Radius", 13, Q("52.999923 mm")))
sketch1.addConstraint(Sketcher.Constraint("Distance", 1, Q("15.378222 mm")))
sketch1.addConstraint(Sketcher.Constraint("Distance", 3, Q("15.378222 mm")))
sketch1.addConstraint(Sketcher.Constraint("Distance", 5, Q("15.99999 mm")))
sketch1.addConstraint(Sketcher.Constraint("Distance", 15, Q("15.99999 mm")))
sketch1.addConstraint(Sketcher.Constraint("DistanceY", -1, 1, 0, 3, Q("65.817931 mm")))
sketch1.addConstraint(Sketcher.Constraint("DistanceY", -1, 1, 4, 3, Q("65.817931 mm")))
sketch1.addConstraint(Sketcher.Constraint("DistanceX", 6, 3, -1, 1, Q("51.65064 mm")))
sketch1.addConstraint(Sketcher.Constraint("DistanceX", -1, 1, 14, 3, Q("51.65064 mm")))
sketch1.addConstraint(Sketcher.Constraint("DistanceX", 4, 2, -1, 1, Q("49.25833 mm")))
sketch1.addConstraint(Sketcher.Constraint("DistanceX", 6, 1, -1, 1, Q("42.115139 mm")))
sketch1.addConstraint(Sketcher.Constraint("DistanceX", -1, 1, 13, 2, Q("42.115139 mm")))
sketch1.addConstraint(Sketcher.Constraint("DistanceX", -1, 1, 15, 2, Q("49.25833 mm")))
sketch1.addConstraint(Sketcher.Constraint("DistanceX", -1, 1, 22, 2, Q("12.87292 mm")))
sketch1.addConstraint(Sketcher.Constraint("DistanceY", -1, 1, 23, 1, Q("25.796552 mm")))
sketch1.addConstraint(Sketcher.Constraint("DistanceX", -1, 1, 24, 2, Q("16.669271 mm")))
sketch1.addConstraint(Sketcher.Constraint("DistanceY", -1, 1, 25, 1, Q("16.669271 mm")))
sketch1.addConstraint(Sketcher.Constraint("DistanceX", -1, 1, 26, 2, Q("25.796552 mm")))
sketch1.addConstraint(Sketcher.Constraint("DistanceX", -1, 1, 27, 1, Q("29.296552 mm")))
sketch1.addConstraint(Sketcher.Constraint("DistanceX", -1, 1, 34, 2, Q("29.296552 mm")))
sketch1.addConstraint(Sketcher.Constraint("DistanceX", -1, 1, 35, 1, Q("25.796552 mm")))
sketch1.addConstraint(Sketcher.Constraint("DistanceY", 36, 2, -1, 1, Q("16.669271 mm")))
sketch1.addConstraint(Sketcher.Constraint("DistanceX", -1, 1, 37, 1, Q("16.669271 mm")))
sketch1.addConstraint(Sketcher.Constraint("DistanceY", 38, 2, -1, 1, Q("25.796552 mm")))
sketch1.addConstraint(Sketcher.Constraint("DistanceX", -1, 1, 39, 1, Q("12.87292 mm")))
sketch1.addConstraint(Sketcher.Constraint("DistanceX", 46, 2, -1, 1, Q("12.87292 mm")))
sketch1.addConstraint(Sketcher.Constraint("DistanceY", 47, 1, -1, 1, Q("25.796552 mm")))
sketch1.addConstraint(Sketcher.Constraint("DistanceX", 48, 2, -1, 1, Q("16.669271 mm")))
sketch1.addConstraint(Sketcher.Constraint("DistanceY", 49, 1, -1, 1, Q("16.669271 mm")))
sketch1.addConstraint(Sketcher.Constraint("DistanceX", 50, 2, -1, 1, Q("25.796552 mm")))
sketch1.addConstraint(Sketcher.Constraint("DistanceX", 51, 1, -1, 1, Q("29.296552 mm")))
sketch1.addConstraint(Sketcher.Constraint("DistanceX", 58, 2, -1, 1, Q("29.296552 mm")))
sketch1.addConstraint(Sketcher.Constraint("DistanceX", 59, 1, -1, 1, Q("25.796552 mm")))
sketch1.addConstraint(Sketcher.Constraint("DistanceY", -1, 1, 60, 2, Q("16.669271 mm")))
sketch1.addConstraint(Sketcher.Constraint("DistanceX", 61, 1, -1, 1, Q("16.669271 mm")))
sketch1.addConstraint(Sketcher.Constraint("DistanceY", -1, 1, 62, 2, Q("25.796552 mm")))
sketch1.addConstraint(Sketcher.Constraint("DistanceX", 63, 1, -1, 1, Q("12.87292 mm")))
sketch1.addConstraint(Sketcher.Constraint("Distance", 22, Q("4.531654 mm")))
sketch1.addConstraint(Sketcher.Constraint("Distance", 28, Q("4.531654 mm")))
sketch1.addConstraint(Sketcher.Constraint("Distance", 34, Q("4.531654 mm")))
sketch1.addConstraint(Sketcher.Constraint("Distance", 40, Q("4.531654 mm")))
sketch1.addConstraint(Sketcher.Constraint("Distance", 46, Q("4.531654 mm")))
sketch1.addConstraint(Sketcher.Constraint("Distance", 52, Q("4.531654 mm")))
sketch1.addConstraint(Sketcher.Constraint("Distance", 58, Q("4.531654 mm")))
sketch1.addConstraint(Sketcher.Constraint("Distance", 64, Q("4.531654 mm")))
sketch1.addConstraint(Sketcher.Constraint("DistanceY", -1, 1, 6, 3, Q("39.461533 mm")))
sketch1.addConstraint(Sketcher.Constraint("DistanceY", -1, 1, 14, 3, Q("39.461533 mm")))
sketch1.addConstraint(Sketcher.Constraint("DistanceY", -1, 1, 18, 3, Q("48.497423 mm")))
sketch1.addConstraint(Sketcher.Constraint("DistanceY", -1, 1, 20, 3, Q("48.497423 mm")))
pad1 = body.newObject("PartDesign::Pad", "Pad")
pad1.Profile = sketch1
pad1.Length = 10

doc.recompute()
